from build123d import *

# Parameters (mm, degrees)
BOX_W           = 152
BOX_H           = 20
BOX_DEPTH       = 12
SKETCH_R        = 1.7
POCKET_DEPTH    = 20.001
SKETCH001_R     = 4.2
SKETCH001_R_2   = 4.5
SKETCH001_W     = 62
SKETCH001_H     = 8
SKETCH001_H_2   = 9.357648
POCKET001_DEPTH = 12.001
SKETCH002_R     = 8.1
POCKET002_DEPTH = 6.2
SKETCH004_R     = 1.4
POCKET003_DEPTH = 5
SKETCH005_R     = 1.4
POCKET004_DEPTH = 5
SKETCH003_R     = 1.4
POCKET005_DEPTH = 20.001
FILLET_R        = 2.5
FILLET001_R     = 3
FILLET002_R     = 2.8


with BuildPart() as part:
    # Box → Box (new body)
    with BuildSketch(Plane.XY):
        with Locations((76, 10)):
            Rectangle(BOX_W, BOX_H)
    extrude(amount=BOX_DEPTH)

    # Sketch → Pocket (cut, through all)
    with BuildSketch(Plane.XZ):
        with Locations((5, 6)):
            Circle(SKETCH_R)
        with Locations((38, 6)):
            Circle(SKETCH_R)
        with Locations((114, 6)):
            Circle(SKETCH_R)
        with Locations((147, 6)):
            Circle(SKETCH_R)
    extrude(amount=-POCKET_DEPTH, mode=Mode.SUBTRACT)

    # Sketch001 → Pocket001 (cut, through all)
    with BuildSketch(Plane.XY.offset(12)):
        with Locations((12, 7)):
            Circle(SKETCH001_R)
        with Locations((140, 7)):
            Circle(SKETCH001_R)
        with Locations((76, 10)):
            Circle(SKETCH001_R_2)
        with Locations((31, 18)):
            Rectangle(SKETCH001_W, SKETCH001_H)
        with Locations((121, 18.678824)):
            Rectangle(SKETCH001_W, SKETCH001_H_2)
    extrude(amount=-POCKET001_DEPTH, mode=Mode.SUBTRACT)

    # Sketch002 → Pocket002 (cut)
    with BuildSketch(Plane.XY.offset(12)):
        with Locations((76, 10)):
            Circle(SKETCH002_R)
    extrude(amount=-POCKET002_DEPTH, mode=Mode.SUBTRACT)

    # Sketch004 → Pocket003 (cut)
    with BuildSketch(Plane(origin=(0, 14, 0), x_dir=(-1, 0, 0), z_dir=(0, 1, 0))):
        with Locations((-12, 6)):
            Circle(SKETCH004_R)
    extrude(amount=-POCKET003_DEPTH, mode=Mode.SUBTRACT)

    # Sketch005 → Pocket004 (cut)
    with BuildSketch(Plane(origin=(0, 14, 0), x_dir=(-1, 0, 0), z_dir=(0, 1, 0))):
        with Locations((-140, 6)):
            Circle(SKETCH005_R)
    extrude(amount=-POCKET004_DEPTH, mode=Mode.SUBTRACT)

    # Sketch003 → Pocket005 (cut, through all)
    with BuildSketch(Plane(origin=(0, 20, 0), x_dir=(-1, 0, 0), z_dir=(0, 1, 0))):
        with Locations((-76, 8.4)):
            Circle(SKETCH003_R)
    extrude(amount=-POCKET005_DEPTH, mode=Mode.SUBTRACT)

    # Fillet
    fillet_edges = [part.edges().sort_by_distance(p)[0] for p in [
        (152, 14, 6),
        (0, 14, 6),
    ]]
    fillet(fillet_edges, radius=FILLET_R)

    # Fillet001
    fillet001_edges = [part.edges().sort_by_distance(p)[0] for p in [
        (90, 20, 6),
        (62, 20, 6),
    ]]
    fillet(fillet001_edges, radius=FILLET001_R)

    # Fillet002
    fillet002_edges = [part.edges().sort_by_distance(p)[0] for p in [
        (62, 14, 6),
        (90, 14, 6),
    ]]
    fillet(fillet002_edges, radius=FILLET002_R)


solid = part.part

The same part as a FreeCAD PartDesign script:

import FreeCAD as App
import Part
import Sketcher
Q = App.Units.Quantity


def edges_at(feature, points):
    """Names of the edges that pass closest to the given points."""
    edges = feature.Shape.Edges
    near = lambda p: min(range(len(edges)), key=lambda i: edges[i].distToShape(Part.Vertex(*p))[0])
    return sorted({f"Edge{near(p) + 1}" for p in points})

doc = App.newDocument("Part")
params = doc.addObject("Spreadsheet::Sheet", "Params")
for row, (alias, value) in enumerate([
    ("sketch1_width", "152 mm"),
    ("sketch1_height", "20 mm"),
    ("pad1_length", "12 mm"),
    ("sketch2_diameter", "3.4 mm"),
    ("sketch3_diameter", "9 mm"),
    ("sketch3_diameter2", "8.4 mm"),
    ("sketch3_width", "62 mm"),
    ("sketch3_height", "8 mm"),
    ("sketch4_diameter", "16.2 mm"),
    ("pocket3_length", "6.2 mm"),
    ("sketch5_diameter", "2.8 mm"),
    ("pocket4_length", "5 mm"),
    ("sketch6_diameter", "2.8 mm"),
    ("pocket5_length", "5 mm"),
    ("sketch7_diameter", "2.8 mm"),
    ("fillet_radius", "2.5 mm"),
    ("fillet2_radius", "3 mm"),
    ("fillet3_radius", "2.8 mm"),
], start=1):
    params.set(f"A{row}", alias)
    params.set(f"B{row}", "=" + value)
    params.setAlias(f"B{row}", alias)

body = doc.addObject("PartDesign::Body", "Body")

# Sketch on XY plane
sketch1 = doc.addObject("Sketcher::SketchObject", "Sketch")
body.addObject(sketch1)
sketch1.AttachmentSupport = (doc.XY_Plane, [""])
sketch1.MapMode = "FlatFace"
sketch1.addGeometry(Part.LineSegment(App.Vector(0, 20, 0), App.Vector(0, 0, 0)), False)
sketch1.addGeometry(Part.LineSegment(App.Vector(0, 0, 0), App.Vector(152, 0, 0)), False)
sketch1.addGeometry(Part.LineSegment(App.Vector(152, 0, 0), App.Vector(152, 20, 0)), False)
sketch1.addGeometry(Part.LineSegment(App.Vector(152, 20, 0), App.Vector(0, 20, 0)), False)
sketch1.addConstraint(Sketcher.Constraint("Coincident", 0, 2, 1, 1))
sketch1.addConstraint(Sketcher.Constraint("Coincident", 1, 2, 2, 1))
sketch1.addConstraint(Sketcher.Constraint("Coincident", 2, 2, 3, 1))
sketch1.addConstraint(Sketcher.Constraint("Coincident", 3, 2, 0, 1))
sketch1.addConstraint(Sketcher.Constraint("Vertical", 0))
sketch1.addConstraint(Sketcher.Constraint("Horizontal", 1))
sketch1.addConstraint(Sketcher.Constraint("Vertical", 2))
sketch1.addConstraint(Sketcher.Constraint("Horizontal", 3))
sketch1.addConstraint(Sketcher.Constraint("Coincident", 0, 2, -1, 1))
sketch1.addConstraint(Sketcher.Constraint("DistanceX", 1, 1, 1, 2, Q("152 mm")))
sketch1.addConstraint(Sketcher.Constraint("DistanceY", 0, 2, 0, 1, Q("20 mm")))
sketch1.setExpression("Constraints[9]", "Params.sketch1_width")
sketch1.setExpression("Constraints[10]", "Params.sketch1_height")
pad1 = doc.addObject("PartDesign::Pad", "Pad")
body.addObject(pad1)
pad1.Profile = sketch1
pad1.setExpression("Length", "Params.pad1_length")

# Sketch on XZ plane
sketch2 = doc.addObject("Sketcher::SketchObject", "Sketch001")
body.addObject(sketch2)
sketch2.AttachmentSupport = (doc.XZ_Plane, [""])
sketch2.MapMode = "FlatFace"
sketch2.addGeometry(Part.Circle(App.Vector(5, 6, 0), App.Vector(0, 0, 1), 1.7), False)
sketch2.addGeometry(Part.Circle(App.Vector(38, 6, 0), App.Vector(0, 0, 1), 1.7), False)
sketch2.addGeometry(Part.Circle(App.Vector(114, 6, 0), App.Vector(0, 0, 1), 1.7), False)
sketch2.addGeometry(Part.Circle(App.Vector(147, 6, 0), App.Vector(0, 0, 1), 1.7), False)
sketch2.addConstraint(Sketcher.Constraint("Equal", 0, 1))
sketch2.addConstraint(Sketcher.Constraint("Equal", 1, 2))
sketch2.addConstraint(Sketcher.Constraint("Equal", 2, 3))
sketch2.addConstraint(Sketcher.Constraint("Horizontal", 0, 3, 1, 3))
sketch2.addConstraint(Sketcher.Constraint("Horizontal", 1, 3, 2, 3))
sketch2.addConstraint(Sketcher.Constraint("Horizontal", 2, 3, 3, 3))
sketch2.addConstraint(Sketcher.Constraint("Diameter", 0, Q("3.4 mm")))
sketch2.addConstraint(Sketcher.Constraint("DistanceX", -1, 1, 0, 3, Q("5 mm")))
sketch2.addConstraint(Sketcher.Constraint("DistanceY", -1, 1, 0, 3, Q("6 mm")))
sketch2.addConstraint(Sketcher.Constraint("DistanceX", -1, 1, 1, 3, Q("38 mm")))
sketch2.addConstraint(Sketcher.Constraint("DistanceX", -1, 1, 2, 3, Q("114 mm")))
sketch2.addConstraint(Sketcher.Constraint("DistanceX", -1, 1, 3, 3, Q("147 mm")))
sketch2.setExpression("Constraints[6]", "Params.sketch2_diameter")
pocket1 = doc.addObject("PartDesign::Pocket", "Pocket")
body.addObject(pocket1)
pocket1.Profile = sketch2
pocket1.Type = "ThroughAll"

# Sketch on XY plane
sketch3 = doc.addObject("Sketcher::SketchObject", "Sketch002")
body.addObject(sketch3)
sketch3.AttachmentSupport = (doc.XY_Plane, [""])
sketch3.MapMode = "FlatFace"
sketch3.AttachmentOffset = App.Placement(App.Vector(0, 0, 12), App.Rotation())
sketch3.addGeometry(Part.Circle(App.Vector(12, 7, 0), App.Vector(0, 0, 1), 4.2), False)
sketch3.addGeometry(Part.Circle(App.Vector(140, 7, 0), App.Vector(0, 0, 1), 4.2), False)
sketch3.addGeometry(Part.Circle(App.Vector(76, 10, 0), App.Vector(0, 0, 1), 4.5), False)
sketch3.addGeometry(Part.LineSegment(App.Vector(0, 22, 0), App.Vector(0, 14, 0)), False)
sketch3.addGeometry(Part.LineSegment(App.Vector(0, 14, 0), App.Vector(62, 14, 0)), False)
sketch3.addGeometry(Part.LineSegment(App.Vector(62, 14, 0), App.Vector(62, 22, 0)), False)
sketch3.addGeometry(Part.LineSegment(App.Vector(62, 22, 0), App.Vector(0, 22, 0)), False)
sketch3.addGeometry(Part.LineSegment(App.Vector(90, 23.4, 0), App.Vector(90, 14, 0)), False)
sketch3.addGeometry(Part.LineSegment(App.Vector(90, 14, 0), App.Vector(152, 14, 0)), False)
sketch3.addGeometry(Part.LineSegment(App.Vector(152, 14, 0), App.Vector(152, 23.4, 0)), False)
sketch3.addGeometry(Part.LineSegment(App.Vector(152, 23.4, 0), App.Vector(90, 23.4, 0)), False)
sketch3.addConstraint(Sketcher.Constraint("Coincident", 3, 2, 4, 1))
sketch3.addConstraint(Sketcher.Constraint("Coincident", 4, 2, 5, 1))
sketch3.addConstraint(Sketcher.Constraint("Coincident", 5, 2, 6, 1))
sketch3.addConstraint(Sketcher.Constraint("Coincident", 6, 2, 3, 1))
sketch3.addConstraint(Sketcher.Constraint("Coincident", 7, 2, 8, 1))
sketch3.addConstraint(Sketcher.Constraint("Coincident", 8, 2, 9, 1))
sketch3.addConstraint(Sketcher.Constraint("Coincident", 9, 2, 10, 1))
sketch3.addConstraint(Sketcher.Constraint("Coincident", 10, 2, 7, 1))
sketch3.addConstraint(Sketcher.Constraint("Vertical", 3))
sketch3.addConstraint(Sketcher.Constraint("Horizontal", 4))
sketch3.addConstraint(Sketcher.Constraint("Vertical", 5))
sketch3.addConstraint(Sketcher.Constraint("Horizontal", 6))
sketch3.addConstraint(Sketcher.Constraint("Vertical", 7))
sketch3.addConstraint(Sketcher.Constraint("Horizontal", 8))
sketch3.addConstraint(Sketcher.Constraint("Vertical", 9))
sketch3.addConstraint(Sketcher.Constraint("Horizontal", 10))
sketch3.addConstraint(Sketcher.Constraint("Equal", 0, 1))
sketch3.addConstraint(Sketcher.Constraint("PointOnObject", 3, 2, -2))
sketch3.addConstraint(Sketcher.Constraint("Horizontal", 0, 3, 1, 3))
sketch3.addConstraint(Sketcher.Constraint("Horizontal", 4, 2, 7, 2))
sketch3.addConstraint(Sketcher.Constraint("Equal", 6, 8))
sketch3.addConstraint(Sketcher.Constraint("Diameter", 2, Q("9 mm")))
sketch3.addConstraint(Sketcher.Constraint("Diameter", 0, Q("8.4 mm")))
sketch3.addConstraint(Sketcher.Constraint("DistanceX", 4, 1, 4, 2, Q("62 mm")))
sketch3.addConstraint(Sketcher.Constraint("DistanceY", 3, 2, 3, 1, Q("8 mm")))
sketch3.addConstraint(Sketcher.Constraint("DistanceX", -1, 1, 0, 3, Q("12 mm")))
sketch3.addConstraint(Sketcher.Constraint("DistanceY", -1, 1, 0, 3, Q("7 mm")))
sketch3.addConstraint(Sketcher.Constraint("DistanceX", -1, 1, 1, 3, Q("140 mm")))
sketch3.addConstraint(Sketcher.Constraint("DistanceX", -1, 1, 2, 3, Q("76 mm")))
sketch3.addConstraint(Sketcher.Constraint("DistanceY", -1, 1, 2, 3, Q("10 mm")))
sketch3.addConstraint(Sketcher.Constraint("DistanceY", -1, 1, 3, 2, Q("14 mm")))
sketch3.addConstraint(Sketcher.Constraint("DistanceX", -1, 1, 7, 2, Q("90 mm")))
sketch3.addConstraint(Sketcher.Constraint("DistanceY", 7, 2, 7, 1, Q("9.357648 mm")))
sketch3.setExpression("Constraints[21]", "Params.sketch3_diameter")
sketch3.setExpression("Constraints[22]", "Params.sketch3_diameter2")
sketch3.setExpression("Constraints[23]", "Params.sketch3_width")
sketch3.setExpression("Constraints[24]", "Params.sketch3_height")
pocket2 = doc.addObject("PartDesign::Pocket", "Pocket001")
body.addObject(pocket2)
pocket2.Profile = sketch3
pocket2.Type = "ThroughAll"

# Sketch on XY plane
sketch4 = doc.addObject("Sketcher::SketchObject", "Sketch003")
body.addObject(sketch4)
sketch4.AttachmentSupport = (doc.XY_Plane, [""])
sketch4.MapMode = "FlatFace"
sketch4.AttachmentOffset = App.Placement(App.Vector(0, 0, 12), App.Rotation())
sketch4.addGeometry(Part.Circle(App.Vector(76, 10, 0), App.Vector(0, 0, 1), 8), False)
sketch4.addConstraint(Sketcher.Constraint("Diameter", 0, Q("16.2 mm")))
sketch4.addConstraint(Sketcher.Constraint("DistanceX", -1, 1, 0, 3, Q("76 mm")))
sketch4.addConstraint(Sketcher.Constraint("DistanceY", -1, 1, 0, 3, Q("10 mm")))
sketch4.setExpression("Constraints[0]", "Params.sketch4_diameter")
pocket3 = doc.addObject("PartDesign::Pocket", "Pocket002")
body.addObject(pocket3)
pocket3.Profile = sketch4
pocket3.setExpression("Length", "Params.pocket3_length")

# Sketch on XZ plane
sketch5 = doc.addObject("Sketcher::SketchObject", "Sketch004")
body.addObject(sketch5)
sketch5.AttachmentSupport = (doc.XZ_Plane, [""])
sketch5.MapMode = "FlatFace"
sketch5.AttachmentOffset = App.Placement(App.Vector(0, 0, -14), App.Rotation())
sketch5.addGeometry(Part.Circle(App.Vector(12, 6, 0), App.Vector(0, 0, 1), 1.4), False)
sketch5.addConstraint(Sketcher.Constraint("Diameter", 0, Q("2.8 mm")))
sketch5.addConstraint(Sketcher.Constraint("DistanceX", -1, 1, 0, 3, Q("12 mm")))
sketch5.addConstraint(Sketcher.Constraint("DistanceY", -1, 1, 0, 3, Q("6 mm")))
sketch5.setExpression("Constraints[0]", "Params.sketch5_diameter")
pocket4 = doc.addObject("PartDesign::Pocket", "Pocket003")
body.addObject(pocket4)
pocket4.Profile = sketch5
pocket4.setExpression("Length", "Params.pocket4_length")
pocket4.Reversed = True

# Sketch on XZ plane
sketch6 = doc.addObject("Sketcher::SketchObject", "Sketch005")
body.addObject(sketch6)
sketch6.AttachmentSupport = (doc.XZ_Plane, [""])
sketch6.MapMode = "FlatFace"
sketch6.AttachmentOffset = App.Placement(App.Vector(0, 0, -14), App.Rotation())
sketch6.addGeometry(Part.Circle(App.Vector(140, 6, 0), App.Vector(0, 0, 1), 1.4), False)
sketch6.addConstraint(Sketcher.Constraint("Diameter", 0, Q("2.8 mm")))
sketch6.addConstraint(Sketcher.Constraint("DistanceX", -1, 1, 0, 3, Q("140 mm")))
sketch6.addConstraint(Sketcher.Constraint("DistanceY", -1, 1, 0, 3, Q("6 mm")))
sketch6.setExpression("Constraints[0]", "Params.sketch6_diameter")
pocket5 = doc.addObject("PartDesign::Pocket", "Pocket004")
body.addObject(pocket5)
pocket5.Profile = sketch6
pocket5.setExpression("Length", "Params.pocket5_length")
pocket5.Reversed = True

# Sketch on XZ plane
sketch7 = doc.addObject("Sketcher::SketchObject", "Sketch006")
body.addObject(sketch7)
sketch7.AttachmentSupport = (doc.XZ_Plane, [""])
sketch7.MapMode = "FlatFace"
sketch7.AttachmentOffset = App.Placement(App.Vector(0, 0, -20), App.Rotation())
sketch7.addGeometry(Part.Circle(App.Vector(76, 8.4, 0), App.Vector(0, 0, 1), 1.4), False)
sketch7.addConstraint(Sketcher.Constraint("Diameter", 0, Q("2.8 mm")))
sketch7.addConstraint(Sketcher.Constraint("DistanceX", -1, 1, 0, 3, Q("76 mm")))
sketch7.addConstraint(Sketcher.Constraint("DistanceY", -1, 1, 0, 3, Q("8.4 mm")))
sketch7.setExpression("Constraints[0]", "Params.sketch7_diameter")
pocket6 = doc.addObject("PartDesign::Pocket", "Pocket005")
body.addObject(pocket6)
pocket6.Profile = sketch7
pocket6.Type = "ThroughAll"
pocket6.Reversed = True
doc.recompute()

fillet = doc.addObject("PartDesign::Fillet", "Fillet")
body.addObject(fillet)
fillet.Base = (pocket6, edges_at(pocket6, [(152, 14, 6), (0, 14, 6)]))
fillet.setExpression("Radius", "Params.fillet_radius")
doc.recompute()

fillet2 = doc.addObject("PartDesign::Fillet", "Fillet001")
body.addObject(fillet2)
fillet2.Base = (fillet, edges_at(fillet, [(90, 20, 6), (62, 20, 6)]))
fillet2.setExpression("Radius", "Params.fillet2_radius")
doc.recompute()

fillet3 = doc.addObject("PartDesign::Fillet", "Fillet002")
body.addObject(fillet3)
fillet3.Base = (fillet2, edges_at(fillet2, [(62, 14, 6), (90, 14, 6)]))
fillet3.setExpression("Radius", "Params.fillet3_radius")

doc.recompute()
